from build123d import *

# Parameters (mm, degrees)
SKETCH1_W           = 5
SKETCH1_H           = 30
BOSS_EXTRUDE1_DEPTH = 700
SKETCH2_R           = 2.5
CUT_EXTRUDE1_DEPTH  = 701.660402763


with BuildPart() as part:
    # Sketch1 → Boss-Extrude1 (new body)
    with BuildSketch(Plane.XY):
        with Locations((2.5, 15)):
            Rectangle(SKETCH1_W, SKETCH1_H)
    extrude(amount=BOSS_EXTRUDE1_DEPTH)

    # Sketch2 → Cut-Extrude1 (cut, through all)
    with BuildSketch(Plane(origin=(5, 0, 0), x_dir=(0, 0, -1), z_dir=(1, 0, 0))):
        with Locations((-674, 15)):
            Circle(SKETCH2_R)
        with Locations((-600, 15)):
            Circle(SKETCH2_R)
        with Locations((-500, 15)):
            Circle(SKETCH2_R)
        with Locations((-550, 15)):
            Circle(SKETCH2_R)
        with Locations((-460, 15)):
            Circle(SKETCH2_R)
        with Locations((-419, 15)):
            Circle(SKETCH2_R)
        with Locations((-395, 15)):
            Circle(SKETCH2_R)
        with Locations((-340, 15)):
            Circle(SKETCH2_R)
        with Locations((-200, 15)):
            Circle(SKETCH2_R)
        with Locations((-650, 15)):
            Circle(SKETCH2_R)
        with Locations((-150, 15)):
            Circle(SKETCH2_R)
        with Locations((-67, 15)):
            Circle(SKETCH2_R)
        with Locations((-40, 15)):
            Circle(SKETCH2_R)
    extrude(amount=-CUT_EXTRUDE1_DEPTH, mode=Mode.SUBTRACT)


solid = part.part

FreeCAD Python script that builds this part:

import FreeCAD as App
import Part
import Sketcher
from FreeCAD import Vector
Q = App.Units.Quantity

doc = App.newDocument("Part")
body = doc.addObject("PartDesign::Body", "Body")

# Sketch on XY plane
sketch1 = body.newObject("Sketcher::SketchObject", "Sketch")
sketch1.AttachmentSupport = (doc.getObject("XY_Plane"), [""])
sketch1.MapMode = "FlatFace"
sketch1.addGeometry([
    Part.LineSegment(Vector(0, 30, 0), Vector(0, 0, 0)),
    Part.LineSegment(Vector(0, 0, 0), Vector(5, 0, 0)),
    Part.LineSegment(Vector(5, 0, 0), Vector(5, 30, 0)),
    Part.LineSegment(Vector(5, 30, 0), Vector(0, 30, 0)),
], False)
sketch1.addConstraint([
    Sketcher.Constraint("Coincident", 0, 2, 1, 1),
    Sketcher.Constraint("Coincident", 1, 2, 2, 1),
    Sketcher.Constraint("Coincident", 2, 2, 3, 1),
    Sketcher.Constraint("Coincident", 3, 2, 0, 1),
    Sketcher.Constraint("Vertical", 0),
    Sketcher.Constraint("Horizontal", 1),
    Sketcher.Constraint("Vertical", 2),
    Sketcher.Constraint("Horizontal", 3),
    Sketcher.Constraint("Coincident", 0, 2, -1, 1),
    Sketcher.Constraint("DistanceX", 1, 1, 1, 2, Q("5 mm")),
    Sketcher.Constraint("DistanceY", 0, 2, 0, 1, Q("30 mm")),
])
pad1 = body.newObject("PartDesign::Pad", "Pad")
pad1.Profile = sketch1
pad1.Length = 700

# Sketch on YZ plane
sketch2 = body.newObject("Sketcher::SketchObject", "Sketch001")
sketch2.AttachmentSupport = (doc.getObject("YZ_Plane"), [""])
sketch2.MapMode = "FlatFace"
sketch2.AttachmentOffset = App.Placement(Vector(0, 0, 5), App.Rotation())
sketch2.addGeometry([
    Part.Circle(Vector(15, 674, 0), Vector(0, 0, 1), 2.5),  # 0
    Part.Circle(Vector(15, 600, 0), Vector(0, 0, 1), 2.5),  # 1
    Part.Circle(Vector(15, 500, 0), Vector(0, 0, 1), 2.5),  # 2
    Part.Circle(Vector(15, 550, 0), Vector(0, 0, 1), 2.5),  # 3
    Part.Circle(Vector(15, 460, 0), Vector(0, 0, 1), 2.5),  # 4
    Part.Circle(Vector(15, 419, 0), Vector(0, 0, 1), 2.5),  # 5
    Part.Circle(Vector(15, 395, 0), Vector(0, 0, 1), 2.5),  # 6
    Part.Circle(Vector(15, 340, 0), Vector(0, 0, 1), 2.5),  # 7
    Part.Circle(Vector(15, 200, 0), Vector(0, 0, 1), 2.5),  # 8
    Part.Circle(Vector(15, 650, 0), Vector(0, 0, 1), 2.5),  # 9
    Part.Circle(Vector(15, 150, 0), Vector(0, 0, 1), 2.5),  # 10
    Part.Circle(Vector(15, 67, 0), Vector(0, 0, 1), 2.5),  # 11
    Part.Circle(Vector(15, 40, 0), Vector(0, 0, 1), 2.5),  # 12
], False)
sketch2.addConstraint([
    Sketcher.Constraint("Equal", 0, 1),
    Sketcher.Constraint("Equal", 1, 2),
    Sketcher.Constraint("Equal", 2, 3),
    Sketcher.Constraint("Equal", 3, 4),
    Sketcher.Constraint("Equal", 4, 5),
    Sketcher.Constraint("Equal", 5, 6),
    Sketcher.Constraint("Equal", 6, 7),
    Sketcher.Constraint("Equal", 7, 8),
    Sketcher.Constraint("Equal", 8, 9),
    Sketcher.Constraint("Equal", 9, 10),
    Sketcher.Constraint("Equal", 10, 11),
    Sketcher.Constraint("Equal", 11, 12),
    Sketcher.Constraint("Vertical", 0, 3, 1, 3),
    Sketcher.Constraint("Vertical", 1, 3, 2, 3),
    Sketcher.Constraint("Vertical", 2, 3, 3, 3),
    Sketcher.Constraint("Vertical", 3, 3, 4, 3),
    Sketcher.Constraint("Vertical", 4, 3, 5, 3),
    Sketcher.Constraint("Vertical", 5, 3, 6, 3),
    Sketcher.Constraint("Vertical", 6, 3, 7, 3),
    Sketcher.Constraint("Vertical", 7, 3, 8, 3),
    Sketcher.Constraint("Vertical", 8, 3, 9, 3),
    Sketcher.Constraint("Vertical", 9, 3, 10, 3),
    Sketcher.Constraint("Vertical", 10, 3, 11, 3),
    Sketcher.Constraint("Vertical", 11, 3, 12, 3),
    Sketcher.Constraint("Diameter", 0, Q("5 mm")),
    Sketcher.Constraint("DistanceX", -1, 1, 0, 3, Q("15 mm")),
    Sketcher.Constraint("DistanceY", -1, 1, 0, 3, Q("674 mm")),
    Sketcher.Constraint("DistanceY", -1, 1, 1, 3, Q("600 mm")),
    Sketcher.Constraint("DistanceY", -1, 1, 2, 3, Q("500 mm")),
    Sketcher.Constraint("DistanceY", -1, 1, 3, 3, Q("550 mm")),
    Sketcher.Constraint("DistanceY", -1, 1, 4, 3, Q("460 mm")),
    Sketcher.Constraint("DistanceY", -1, 1, 5, 3, Q("419 mm")),
    Sketcher.Constraint("DistanceY", -1, 1, 6, 3, Q("395 mm")),
    Sketcher.Constraint("DistanceY", -1, 1, 7, 3, Q("340 mm")),
    Sketcher.Constraint("DistanceY", -1, 1, 8, 3, Q("200 mm")),
    Sketcher.Constraint("DistanceY", -1, 1, 9, 3, Q("650 mm")),
    Sketcher.Constraint("DistanceY", -1, 1, 10, 3, Q("150 mm")),
    Sketcher.Constraint("DistanceY", -1, 1, 11, 3, Q("67 mm")),
    Sketcher.Constraint("DistanceY", -1, 1, 12, 3, Q("40 mm")),
])
pocket1 = body.newObject("PartDesign::Pocket", "Pocket")
pocket1.Profile = sketch2
pocket1.Type = "ThroughAll"

doc.recompute()
